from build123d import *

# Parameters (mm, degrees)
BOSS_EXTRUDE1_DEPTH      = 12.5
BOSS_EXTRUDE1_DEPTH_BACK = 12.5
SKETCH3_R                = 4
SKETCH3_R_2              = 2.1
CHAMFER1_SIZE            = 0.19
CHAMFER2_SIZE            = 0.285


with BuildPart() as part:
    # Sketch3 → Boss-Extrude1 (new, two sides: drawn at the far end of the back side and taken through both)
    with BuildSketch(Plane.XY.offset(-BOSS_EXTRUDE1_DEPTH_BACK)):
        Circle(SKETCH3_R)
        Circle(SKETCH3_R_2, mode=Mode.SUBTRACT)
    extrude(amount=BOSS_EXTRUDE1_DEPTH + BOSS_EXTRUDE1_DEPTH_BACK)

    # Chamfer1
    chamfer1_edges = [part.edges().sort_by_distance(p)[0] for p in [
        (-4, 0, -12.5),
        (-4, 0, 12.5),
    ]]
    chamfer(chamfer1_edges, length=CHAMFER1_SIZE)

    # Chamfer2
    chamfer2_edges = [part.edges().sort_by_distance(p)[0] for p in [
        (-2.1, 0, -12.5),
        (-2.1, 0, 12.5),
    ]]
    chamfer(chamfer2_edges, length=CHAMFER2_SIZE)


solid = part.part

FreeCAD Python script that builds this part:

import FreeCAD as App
import Part
import Sketcher
Q = App.Units.Quantity


def edges_at(feature, points):
    """Names of the edges that pass closest to the given points."""
    edges = feature.Shape.Edges
    near = lambda p: min(range(len(edges)), key=lambda i: edges[i].distToShape(Part.Vertex(*p))[0])
    return sorted({f"Edge{near(p) + 1}" for p in points})

doc = App.newDocument("Part")
body = doc.addObject("PartDesign::Body", "Body")

sketch1 = body.newObject("Sketcher::SketchObject", "Sketch")
sketch1.AttachmentSupport = (doc.getObject("XY_Plane"), [""])
sketch1.MapMode = "FlatFace"
sketch1.addGeometry([
    Part.Circle(App.Vector(0, 0, 0), App.Vector(0, 0, 1), 4),
    Part.Circle(App.Vector(0, 0, 0), App.Vector(0, 0, 1), 2.1),
], False)
sketch1.addConstraint([
    Sketcher.Constraint("Coincident", 0, 3, -1, 1),
    Sketcher.Constraint("Coincident", 1, 3, -1, 1),
    Sketcher.Constraint("Diameter", 0, Q("8 mm")),
    Sketcher.Constraint("Diameter", 1, Q("4.2 mm")),
])
pad1 = body.newObject("PartDesign::Pad", "Pad")
pad1.Profile = sketch1
pad1.Type = "TwoLengths"
pad1.Length = 12.5
pad1.Length2 = 12.5
doc.recompute()

chamfer = body.newObject("PartDesign::Chamfer", "Chamfer")
chamfer.Base = (pad1, edges_at(pad1, [(-4, 0, -12.5), (-4, 0, 12.5)]))
chamfer.Size = 0.19
doc.recompute()

chamfer2 = body.newObject("PartDesign::Chamfer", "Chamfer001")
chamfer2.Base = (chamfer, edges_at(chamfer, [(-2.1, 0, -12.5), (-2.1, 0, 12.5)]))
chamfer2.Size = 0.285

doc.recompute()
